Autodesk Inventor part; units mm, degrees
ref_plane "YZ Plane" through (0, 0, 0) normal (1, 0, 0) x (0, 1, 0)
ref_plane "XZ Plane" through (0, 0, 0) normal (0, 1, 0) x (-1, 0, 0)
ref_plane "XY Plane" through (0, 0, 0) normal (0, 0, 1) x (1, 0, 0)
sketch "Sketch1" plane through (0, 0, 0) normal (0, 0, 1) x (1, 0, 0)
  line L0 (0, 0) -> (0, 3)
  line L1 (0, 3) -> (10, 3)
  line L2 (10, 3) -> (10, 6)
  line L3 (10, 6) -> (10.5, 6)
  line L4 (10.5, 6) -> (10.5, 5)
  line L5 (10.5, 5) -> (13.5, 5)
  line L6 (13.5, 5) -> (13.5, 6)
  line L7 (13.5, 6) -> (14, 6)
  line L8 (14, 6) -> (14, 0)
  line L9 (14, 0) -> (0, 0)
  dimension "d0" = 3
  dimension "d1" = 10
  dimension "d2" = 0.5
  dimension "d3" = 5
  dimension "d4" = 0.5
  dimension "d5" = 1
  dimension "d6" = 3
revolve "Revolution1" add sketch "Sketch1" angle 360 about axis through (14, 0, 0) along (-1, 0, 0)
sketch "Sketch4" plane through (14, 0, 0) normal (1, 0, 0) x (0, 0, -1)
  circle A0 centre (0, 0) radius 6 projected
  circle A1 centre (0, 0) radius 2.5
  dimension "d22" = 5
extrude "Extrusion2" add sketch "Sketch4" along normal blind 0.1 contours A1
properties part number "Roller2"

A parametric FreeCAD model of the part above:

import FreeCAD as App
import Part
import Sketcher
Q = App.Units.Quantity


def add_polygon(sketch, points):
    """Adds a closed chain of lines whose ends are joined by coincident constraints."""
    first, n = sketch.GeometryCount, len(points)
    for a, b in zip(points, points[1:] + points[:1]):
        sketch.addGeometry(Part.LineSegment(App.Vector(*a, 0), App.Vector(*b, 0)), False)
    for i in range(n):
        sketch.addConstraint(Sketcher.Constraint("Coincident", first + i, 2, first + (i + 1) % n, 1))

doc = App.newDocument("Part")
body = doc.addObject("PartDesign::Body", "Body")

# Sketch on XY plane
sketch1 = body.newObject("Sketcher::SketchObject", "Sketch")
sketch1.AttachmentSupport = (doc.getObject("XY_Plane"), [""])
sketch1.MapMode = "FlatFace"
add_polygon(sketch1, [(0, 3), (0, 0), (14, 0), (14, 6), (13.5, 6), (13.5, 5), (10.5, 5), (10.5, 6), (10, 6), (10, 3)])  # lines 0-9
sketch1.addConstraint([
    Sketcher.Constraint("Vertical", 0),
    Sketcher.Constraint("Horizontal", 1),
    Sketcher.Constraint("Vertical", 2),
    Sketcher.Constraint("Horizontal", 3),
    Sketcher.Constraint("Vertical", 4),
    Sketcher.Constraint("Horizontal", 5),
    Sketcher.Constraint("Vertical", 6),
    Sketcher.Constraint("Horizontal", 7),
    Sketcher.Constraint("Vertical", 8),
    Sketcher.Constraint("Horizontal", 9),
    Sketcher.Constraint("Coincident", 0, 2, -1, 1),
    Sketcher.Constraint("Horizontal", 3, 2, 6, 2),
    Sketcher.Constraint("Equal", 3, 7),
    Sketcher.Constraint("Equal", 5, 0),
    Sketcher.Constraint("Equal", 0, 8),
    Sketcher.Constraint("DistanceX", 5, 2, 5, 1, Q("3 mm")),
    Sketcher.Constraint("DistanceX", 9, 2, 9, 1, Q("10 mm")),
    Sketcher.Constraint("DistanceY", 4, 2, 4, 1, Q("1 mm")),
    Sketcher.Constraint("DistanceX", 3, 2, 3, 1, Q("0.5 mm")),
])
revolution = body.newObject("PartDesign::Revolution", "Revolution")
revolution.Profile = sketch1
revolution.ReferenceAxis = (sketch1, ["H_Axis"])
revolution.Angle = 360

# Sketch on YZ plane
sketch2 = body.newObject("Sketcher::SketchObject", "Sketch001")
sketch2.AttachmentSupport = (doc.getObject("YZ_Plane"), [""])
sketch2.MapMode = "FlatFace"
sketch2.AttachmentOffset = App.Placement(App.Vector(0, 0, 14), App.Rotation())
sketch2.addGeometry(Part.Circle(App.Vector(0, 0, 0), App.Vector(0, 0, 1), 2.5), False)
sketch2.addConstraint([
    Sketcher.Constraint("Coincident", 0, 3, -1, 1),
    Sketcher.Constraint("Diameter", 0, Q("5 mm")),
])
pad1 = body.newObject("PartDesign::Pad", "Pad")
pad1.Profile = sketch2
pad1.Length = 0.1

doc.recompute()
